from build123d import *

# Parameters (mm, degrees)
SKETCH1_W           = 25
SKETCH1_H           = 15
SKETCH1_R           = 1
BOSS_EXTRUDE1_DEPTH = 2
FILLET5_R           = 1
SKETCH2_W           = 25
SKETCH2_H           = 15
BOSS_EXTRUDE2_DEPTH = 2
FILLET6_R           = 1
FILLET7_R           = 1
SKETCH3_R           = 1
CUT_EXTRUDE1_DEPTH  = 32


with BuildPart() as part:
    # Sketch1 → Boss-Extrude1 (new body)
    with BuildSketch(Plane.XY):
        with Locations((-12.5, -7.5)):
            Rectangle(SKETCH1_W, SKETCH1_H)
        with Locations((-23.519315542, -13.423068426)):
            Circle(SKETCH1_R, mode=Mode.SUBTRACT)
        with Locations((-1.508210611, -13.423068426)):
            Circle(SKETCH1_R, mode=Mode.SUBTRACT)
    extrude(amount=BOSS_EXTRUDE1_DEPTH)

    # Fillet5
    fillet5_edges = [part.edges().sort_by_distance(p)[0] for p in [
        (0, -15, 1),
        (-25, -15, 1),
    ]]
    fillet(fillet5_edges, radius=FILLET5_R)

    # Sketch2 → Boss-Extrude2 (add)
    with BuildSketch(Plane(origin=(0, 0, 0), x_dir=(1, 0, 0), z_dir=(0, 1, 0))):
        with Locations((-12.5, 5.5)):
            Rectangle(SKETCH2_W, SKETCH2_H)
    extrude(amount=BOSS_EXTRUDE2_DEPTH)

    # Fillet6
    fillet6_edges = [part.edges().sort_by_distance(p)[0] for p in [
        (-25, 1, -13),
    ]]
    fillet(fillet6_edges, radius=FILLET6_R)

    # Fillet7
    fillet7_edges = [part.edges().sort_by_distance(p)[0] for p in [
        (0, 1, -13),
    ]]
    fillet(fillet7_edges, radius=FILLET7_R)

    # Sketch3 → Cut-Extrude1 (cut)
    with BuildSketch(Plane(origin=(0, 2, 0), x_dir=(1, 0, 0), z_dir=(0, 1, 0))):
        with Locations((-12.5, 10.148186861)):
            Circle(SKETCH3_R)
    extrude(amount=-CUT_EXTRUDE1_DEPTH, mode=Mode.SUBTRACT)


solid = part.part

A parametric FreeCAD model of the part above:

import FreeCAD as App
import Part
import Sketcher

V = App.Vector


def edges_at(feature, points):
    """Names of the edges that pass closest to the given points."""
    edges = feature.Shape.Edges
    near = lambda p: min(range(len(edges)), key=lambda i: edges[i].distToShape(Part.Vertex(*p))[0])
    return sorted({f"Edge{near(p) + 1}" for p in points})


def add_polygon(sketch, points):
    """Adds a closed chain of lines whose ends are joined by coincident constraints."""
    first, n = sketch.GeometryCount, len(points)
    for a, b in zip(points, points[1:] + points[:1]):
        sketch.addGeometry(Part.LineSegment(App.Vector(*a, 0), App.Vector(*b, 0)), False)
    for i in range(n):
        sketch.addConstraint(Sketcher.Constraint("Coincident", first + i, 2, first + (i + 1) % n, 1))

doc = App.newDocument("Part")
body = doc.addObject("PartDesign::Body", "Body")

# Sketch on XY plane
sketch1 = body.newObject("Sketcher::SketchObject", "Sketch")
sketch1.AttachmentSupport = (doc.getObject("XY_Plane"), [""])
sketch1.MapMode = "FlatFace"
add_polygon(sketch1, [(-25, 0), (-25, -15), (0, -15), (0, 0)])  # lines 0-3
sketch1.addGeometry(Part.Circle(V(-23.5, -13.4, 0), V(0, 0, 1), 1), False)  # 4
sketch1.addGeometry(Part.Circle(V(-1.5, -13.4, 0), V(0, 0, 1), 1), False)  # 5
sketch1.addConstraint(Sketcher.Constraint("Vertical", 0))
sketch1.addConstraint(Sketcher.Constraint("Horizontal", 1))
sketch1.addConstraint(Sketcher.Constraint("Vertical", 2))
sketch1.addConstraint(Sketcher.Constraint("Horizontal", 3))
sketch1.addConstraint(Sketcher.Constraint("Coincident", 2, 2, -1, 1))
sketch1.addConstraint(Sketcher.Constraint("Equal", 4, 5))
sketch1.addConstraint(Sketcher.Constraint("Horizontal", 4, 3, 5, 3))
sketch1.addConstraint(Sketcher.Constraint("Diameter", 4, 2.0))
sketch1.addConstraint(Sketcher.Constraint("DistanceX", 1, 1, 1, 2, 25.0))
sketch1.addConstraint(Sketcher.Constraint("DistanceY", 0, 2, 0, 1, 15.0))
sketch1.addConstraint(Sketcher.Constraint("DistanceY", 4, 3, -1, 1, 13.423068))
sketch1.addConstraint(Sketcher.Constraint("DistanceX", 5, 3, -1, 1, 1.508211))
sketch1.addConstraint(Sketcher.Constraint("DistanceX", 4, 3, -1, 1, 23.519316))
pad1 = body.newObject("PartDesign::Pad", "Pad")
pad1.Profile = sketch1
pad1.Length = 2
doc.recompute()

fillet = body.newObject("PartDesign::Fillet", "Fillet")
fillet.Base = (pad1, edges_at(pad1, [(0, -15, 1), (-25, -15, 1)]))
fillet.Radius = 1

# Sketch on XZ plane
sketch2 = body.newObject("Sketcher::SketchObject", "Sketch001")
sketch2.AttachmentSupport = (doc.getObject("XZ_Plane"), [""])
sketch2.MapMode = "FlatFace"
add_polygon(sketch2, [(-25, -13), (-25, 2), (0, 2), (0, -13)])  # lines 0-3
sketch2.addConstraint(Sketcher.Constraint("Vertical", 0))
sketch2.addConstraint(Sketcher.Constraint("Horizontal", 1))
sketch2.addConstraint(Sketcher.Constraint("Vertical", 2))
sketch2.addConstraint(Sketcher.Constraint("Horizontal", 3))
sketch2.addConstraint(Sketcher.Constraint("PointOnObject", 1, 2, -2))
sketch2.addConstraint(Sketcher.Constraint("DistanceX", 1, 1, 1, 2, 25.0))
sketch2.addConstraint(Sketcher.Constraint("DistanceY", 0, 1, 0, 2, 15.0))
sketch2.addConstraint(Sketcher.Constraint("DistanceY", -1, 1, 0, 2, 2.0))
pad2 = body.newObject("PartDesign::Pad", "Pad001")
pad2.Profile = sketch2
pad2.Length = 2
pad2.Reversed = True
doc.recompute()

fillet2 = body.newObject("PartDesign::Fillet", "Fillet001")
fillet2.Base = (pad2, edges_at(pad2, [(-25, 1, -13)]))
fillet2.Radius = 1
doc.recompute()

fillet3 = body.newObject("PartDesign::Fillet", "Fillet002")
fillet3.Base = (fillet2, edges_at(fillet2, [(0, 1, -13)]))
fillet3.Radius = 1

# Sketch on XZ plane
sketch3 = body.newObject("Sketcher::SketchObject", "Sketch002")
sketch3.AttachmentSupport = (doc.getObject("XZ_Plane"), [""])
sketch3.MapMode = "FlatFace"
sketch3.AttachmentOffset = App.Placement(V(0, 0, -2), App.Rotation())
sketch3.addGeometry(Part.Circle(V(-12.5, -10.1, 0), V(0, 0, 1), 1), False)
sketch3.addConstraint(Sketcher.Constraint("Diameter", 0, 2.0))
sketch3.addConstraint(Sketcher.Constraint("DistanceX", 0, 3, -1, 1, 12.5))
sketch3.addConstraint(Sketcher.Constraint("DistanceY", 0, 3, -1, 1, 10.148187))
pocket1 = body.newObject("PartDesign::Pocket", "Pocket")
pocket1.Profile = sketch3
pocket1.Length = 32
pocket1.Reversed = True

doc.recompute()
